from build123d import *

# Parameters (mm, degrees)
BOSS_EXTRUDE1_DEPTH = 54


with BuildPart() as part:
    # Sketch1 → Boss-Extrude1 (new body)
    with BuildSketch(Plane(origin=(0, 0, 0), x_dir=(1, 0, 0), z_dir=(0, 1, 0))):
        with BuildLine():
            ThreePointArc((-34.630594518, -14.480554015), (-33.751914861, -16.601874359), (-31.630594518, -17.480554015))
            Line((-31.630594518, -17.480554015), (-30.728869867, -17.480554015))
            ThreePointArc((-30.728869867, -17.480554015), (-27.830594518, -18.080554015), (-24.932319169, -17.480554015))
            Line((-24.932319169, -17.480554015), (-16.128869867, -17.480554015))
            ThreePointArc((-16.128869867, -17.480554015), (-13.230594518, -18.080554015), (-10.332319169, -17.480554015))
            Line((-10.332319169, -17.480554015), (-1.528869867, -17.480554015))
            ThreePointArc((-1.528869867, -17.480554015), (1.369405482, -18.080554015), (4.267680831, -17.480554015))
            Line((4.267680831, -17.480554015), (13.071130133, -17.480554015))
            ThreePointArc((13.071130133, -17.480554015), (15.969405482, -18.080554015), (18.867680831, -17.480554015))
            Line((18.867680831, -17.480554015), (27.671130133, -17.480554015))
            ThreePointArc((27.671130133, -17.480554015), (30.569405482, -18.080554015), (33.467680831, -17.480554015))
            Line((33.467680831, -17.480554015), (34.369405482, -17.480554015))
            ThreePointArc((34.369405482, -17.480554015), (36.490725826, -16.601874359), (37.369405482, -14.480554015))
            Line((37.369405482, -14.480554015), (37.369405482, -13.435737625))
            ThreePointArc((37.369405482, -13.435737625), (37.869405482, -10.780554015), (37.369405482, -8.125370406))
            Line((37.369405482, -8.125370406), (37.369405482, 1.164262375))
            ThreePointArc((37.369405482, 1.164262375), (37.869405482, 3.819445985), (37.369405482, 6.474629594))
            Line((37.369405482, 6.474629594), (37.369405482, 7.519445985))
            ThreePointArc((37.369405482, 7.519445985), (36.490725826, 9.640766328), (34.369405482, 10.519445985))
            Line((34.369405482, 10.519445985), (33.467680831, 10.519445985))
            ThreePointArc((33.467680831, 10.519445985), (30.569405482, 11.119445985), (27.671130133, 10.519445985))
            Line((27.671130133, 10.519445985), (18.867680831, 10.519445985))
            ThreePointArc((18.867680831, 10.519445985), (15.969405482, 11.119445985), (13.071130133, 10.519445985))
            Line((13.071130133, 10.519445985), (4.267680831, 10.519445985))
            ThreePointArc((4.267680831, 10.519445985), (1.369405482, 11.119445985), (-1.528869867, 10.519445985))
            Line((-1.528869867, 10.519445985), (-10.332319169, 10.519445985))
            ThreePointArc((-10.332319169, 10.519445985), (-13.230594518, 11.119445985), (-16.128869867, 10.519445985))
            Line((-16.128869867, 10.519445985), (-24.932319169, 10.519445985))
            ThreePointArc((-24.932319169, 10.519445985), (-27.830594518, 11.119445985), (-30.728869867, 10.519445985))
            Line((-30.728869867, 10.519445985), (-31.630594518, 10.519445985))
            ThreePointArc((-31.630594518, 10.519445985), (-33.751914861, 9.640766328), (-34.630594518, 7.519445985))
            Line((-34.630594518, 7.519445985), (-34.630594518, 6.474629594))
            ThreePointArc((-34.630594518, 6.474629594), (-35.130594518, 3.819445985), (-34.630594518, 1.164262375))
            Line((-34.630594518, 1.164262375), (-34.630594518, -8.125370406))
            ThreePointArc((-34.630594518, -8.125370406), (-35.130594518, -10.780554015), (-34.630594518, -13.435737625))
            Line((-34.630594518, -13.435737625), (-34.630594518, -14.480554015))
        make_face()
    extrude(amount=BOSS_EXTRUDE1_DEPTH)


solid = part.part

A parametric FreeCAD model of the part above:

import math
import FreeCAD as App
import Part
import Sketcher
from FreeCAD import Vector
Q = App.Units.Quantity

doc = App.newDocument("Part")
body = doc.addObject("PartDesign::Body", "Body")

# Sketch on XZ plane
sketch1 = body.newObject("Sketcher::SketchObject", "Sketch")
sketch1.AttachmentSupport = (doc.getObject("XZ_Plane"), [""])
sketch1.MapMode = "FlatFace"
sketch1.addGeometry([
    Part.ArcOfCircle(Part.Circle(Vector(-31.6, 14.5, 0), Vector(0, 0, 1), 3), math.radians(90), math.radians(180)),  # 0
    Part.LineSegment(Vector(-31.6, 17.5, 0), Vector(-30.7, 17.5, 0)),  # 1
    Part.ArcOfCircle(Part.Circle(Vector(-27.8, 10.8, 0), Vector(0, 0, 1), 7.3), math.radians(67), math.radians(113)),  # 2
    Part.LineSegment(Vector(-24.9, 17.5, 0), Vector(-16.1, 17.5, 0)),  # 3
    Part.ArcOfCircle(Part.Circle(Vector(-13.2, 10.8, 0), Vector(0, 0, 1), 7.3), math.radians(67), math.radians(113)),  # 4
    Part.LineSegment(Vector(-10.3, 17.5, 0), Vector(-1.5, 17.5, 0)),  # 5
    Part.ArcOfCircle(Part.Circle(Vector(1.4, 10.8, 0), Vector(0, 0, 1), 7.3), math.radians(67), math.radians(113)),  # 6
    Part.LineSegment(Vector(4.3, 17.5, 0), Vector(13.1, 17.5, 0)),  # 7
    Part.ArcOfCircle(Part.Circle(Vector(16, 10.8, 0), Vector(0, 0, 1), 7.3), math.radians(67), math.radians(113)),  # 8
    Part.LineSegment(Vector(18.9, 17.5, 0), Vector(27.7, 17.5, 0)),  # 9
    Part.ArcOfCircle(Part.Circle(Vector(30.6, 10.8, 0), Vector(0, 0, 1), 7.3), math.radians(67), math.radians(113)),  # 10
    Part.LineSegment(Vector(33.5, 17.5, 0), Vector(34.4, 17.5, 0)),  # 11
    Part.ArcOfCircle(Part.Circle(Vector(34.4, 14.5, 0), Vector(0, 0, 1), 3), math.radians(0), math.radians(90)),  # 12
    Part.LineSegment(Vector(37.4, 14.5, 0), Vector(37.4, 13.4, 0)),  # 13
    Part.ArcOfCircle(Part.Circle(Vector(30.6, 10.8, 0), Vector(0, 0, 1), 7.3), math.radians(-21), math.radians(21)),  # 14
    Part.LineSegment(Vector(37.4, 8.1, 0), Vector(37.4, -1.2, 0)),  # 15
    Part.ArcOfCircle(Part.Circle(Vector(30.6, -3.8, 0), Vector(0, 0, 1), 7.3), math.radians(-21), math.radians(21)),  # 16
    Part.LineSegment(Vector(37.4, -6.5, 0), Vector(37.4, -7.5, 0)),  # 17
    Part.ArcOfCircle(Part.Circle(Vector(34.4, -7.5, 0), Vector(0, 0, 1), 3), math.radians(-90), math.radians(0)),  # 18
    Part.LineSegment(Vector(34.4, -10.5, 0), Vector(33.5, -10.5, 0)),  # 19
    Part.ArcOfCircle(Part.Circle(Vector(30.6, -3.8, 0), Vector(0, 0, 1), 7.3), math.radians(-113), math.radians(-67)),  # 20
    Part.LineSegment(Vector(27.7, -10.5, 0), Vector(18.9, -10.5, 0)),  # 21
    Part.ArcOfCircle(Part.Circle(Vector(16, -3.8, 0), Vector(0, 0, 1), 7.3), math.radians(-113), math.radians(-67)),  # 22
    Part.LineSegment(Vector(13.1, -10.5, 0), Vector(4.3, -10.5, 0)),  # 23
    Part.ArcOfCircle(Part.Circle(Vector(1.4, -3.8, 0), Vector(0, 0, 1), 7.3), math.radians(-113), math.radians(-67)),  # 24
    Part.LineSegment(Vector(-1.5, -10.5, 0), Vector(-10.3, -10.5, 0)),  # 25
    Part.ArcOfCircle(Part.Circle(Vector(-13.2, -3.8, 0), Vector(0, 0, 1), 7.3), math.radians(-113), math.radians(-67)),  # 26
    Part.LineSegment(Vector(-16.1, -10.5, 0), Vector(-24.9, -10.5, 0)),  # 27
    Part.ArcOfCircle(Part.Circle(Vector(-27.8, -3.8, 0), Vector(0, 0, 1), 7.3), math.radians(-113), math.radians(-67)),  # 28
    Part.LineSegment(Vector(-30.7, -10.5, 0), Vector(-31.6, -10.5, 0)),  # 29
    Part.ArcOfCircle(Part.Circle(Vector(-31.6, -7.5, 0), Vector(0, 0, 1), 3), math.radians(-180), math.radians(-90)),  # 30
    Part.LineSegment(Vector(-34.6, -7.5, 0), Vector(-34.6, -6.5, 0)),  # 31
    Part.ArcOfCircle(Part.Circle(Vector(-27.8, -3.8, 0), Vector(0, 0, 1), 7.3), math.radians(159), math.radians(201)),  # 32
    Part.LineSegment(Vector(-34.6, -1.2, 0), Vector(-34.6, 8.1, 0)),  # 33
    Part.ArcOfCircle(Part.Circle(Vector(-27.8, 10.8, 0), Vector(0, 0, 1), 7.3), math.radians(159), math.radians(201)),  # 34
    Part.LineSegment(Vector(-34.6, 13.4, 0), Vector(-34.6, 14.5, 0)),  # 35
], False)
sketch1.addConstraint([
    Sketcher.Constraint("Tangent", 0, 1, 1, 1),
    Sketcher.Constraint("Coincident", 1, 2, 2, 2),
    Sketcher.Constraint("Coincident", 2, 1, 3, 1),
    Sketcher.Constraint("Coincident", 3, 2, 4, 2),
    Sketcher.Constraint("Coincident", 4, 1, 5, 1),
    Sketcher.Constraint("Coincident", 5, 2, 6, 2),
    Sketcher.Constraint("Coincident", 6, 1, 7, 1),
    Sketcher.Constraint("Coincident", 7, 2, 8, 2),
    Sketcher.Constraint("Coincident", 8, 1, 9, 1),
    Sketcher.Constraint("Coincident", 9, 2, 10, 2),
    Sketcher.Constraint("Coincident", 10, 1, 11, 1),
    Sketcher.Constraint("Tangent", 11, 2, 12, 2),
    Sketcher.Constraint("Tangent", 12, 1, 13, 1),
    Sketcher.Constraint("Coincident", 13, 2, 14, 2),
    Sketcher.Constraint("Coincident", 14, 1, 15, 1),
    Sketcher.Constraint("Coincident", 15, 2, 16, 2),
    Sketcher.Constraint("Coincident", 16, 1, 17, 1),
    Sketcher.Constraint("Tangent", 17, 2, 18, 2),
    Sketcher.Constraint("Tangent", 18, 1, 19, 1),
    Sketcher.Constraint("Coincident", 19, 2, 20, 2),
    Sketcher.Constraint("Coincident", 20, 1, 21, 1),
    Sketcher.Constraint("Coincident", 21, 2, 22, 2),
    Sketcher.Constraint("Coincident", 22, 1, 23, 1),
    Sketcher.Constraint("Coincident", 23, 2, 24, 2),
    Sketcher.Constraint("Coincident", 24, 1, 25, 1),
    Sketcher.Constraint("Coincident", 25, 2, 26, 2),
    Sketcher.Constraint("Coincident", 26, 1, 27, 1),
    Sketcher.Constraint("Coincident", 27, 2, 28, 2),
    Sketcher.Constraint("Coincident", 28, 1, 29, 1),
    Sketcher.Constraint("Tangent", 29, 2, 30, 2),
    Sketcher.Constraint("Tangent", 30, 1, 31, 1),
    Sketcher.Constraint("Coincident", 31, 2, 32, 2),
    Sketcher.Constraint("Coincident", 32, 1, 33, 1),
    Sketcher.Constraint("Coincident", 33, 2, 34, 2),
    Sketcher.Constraint("Coincident", 34, 1, 35, 1),
    Sketcher.Constraint("Tangent", 35, 2, 0, 2),
    Sketcher.Constraint("Horizontal", 1),
    Sketcher.Constraint("Horizontal", 3),
    Sketcher.Constraint("Horizontal", 5),
    Sketcher.Constraint("Horizontal", 7),
    Sketcher.Constraint("Horizontal", 9),
    Sketcher.Constraint("Horizontal", 11),
    Sketcher.Constraint("Vertical", 13),
    Sketcher.Constraint("Vertical", 15),
    Sketcher.Constraint("Vertical", 17),
    Sketcher.Constraint("Horizontal", 19),
    Sketcher.Constraint("Horizontal", 21),
    Sketcher.Constraint("Horizontal", 23),
    Sketcher.Constraint("Horizontal", 25),
    Sketcher.Constraint("Horizontal", 27),
    Sketcher.Constraint("Horizontal", 29),
    Sketcher.Constraint("Vertical", 31),
    Sketcher.Constraint("Vertical", 33),
    Sketcher.Constraint("Vertical", 35),
    Sketcher.Constraint("Coincident", 14, 3, 10, 3),
    Sketcher.Constraint("Coincident", 20, 3, 16, 3),
    Sketcher.Constraint("Coincident", 32, 3, 28, 3),
    Sketcher.Constraint("Coincident", 34, 3, 2, 3),
    Sketcher.Constraint("Equal", 2, 4),
    Sketcher.Constraint("Equal", 4, 6),
    Sketcher.Constraint("Equal", 6, 8),
    Sketcher.Constraint("Equal", 8, 10),
    Sketcher.Constraint("Equal", 0, 12),
    Sketcher.Constraint("Equal", 10, 14),
    Sketcher.Constraint("Equal", 14, 16),
    Sketcher.Constraint("Equal", 12, 18),
    Sketcher.Constraint("Equal", 16, 20),
    Sketcher.Constraint("Equal", 20, 22),
    Sketcher.Constraint("Equal", 22, 24),
    Sketcher.Constraint("Equal", 24, 26),
    Sketcher.Constraint("Equal", 26, 28),
    Sketcher.Constraint("Equal", 18, 30),
    Sketcher.Constraint("Equal", 28, 32),
    Sketcher.Constraint("Equal", 32, 34),
    Sketcher.Constraint("Horizontal", 2, 3, 4, 3),
    Sketcher.Constraint("Horizontal", 4, 3, 6, 3),
    Sketcher.Constraint("Horizontal", 6, 3, 8, 3),
    Sketcher.Constraint("Horizontal", 8, 3, 10, 3),
    Sketcher.Constraint("Horizontal", 0, 3, 12, 3),
    Sketcher.Constraint("Horizontal", 20, 3, 22, 3),
    Sketcher.Constraint("Horizontal", 22, 3, 24, 3),
    Sketcher.Constraint("Horizontal", 24, 3, 26, 3),
    Sketcher.Constraint("Horizontal", 26, 3, 28, 3),
    Sketcher.Constraint("Horizontal", 18, 3, 30, 3),
    Sketcher.Constraint("Horizontal", 1, 2, 2, 1),
    Sketcher.Constraint("Horizontal", 3, 2, 4, 1),
    Sketcher.Constraint("Horizontal", 5, 2, 6, 1),
    Sketcher.Constraint("Horizontal", 7, 2, 8, 1),
    Sketcher.Constraint("Horizontal", 19, 2, 20, 1),
    Sketcher.Constraint("Horizontal", 21, 2, 22, 1),
    Sketcher.Constraint("Horizontal", 23, 2, 24, 1),
    Sketcher.Constraint("Horizontal", 25, 2, 26, 1),
    Sketcher.Constraint("Horizontal", 16, 1, 31, 2),
    Sketcher.Constraint("Horizontal", 15, 2, 32, 1),
    Sketcher.Constraint("Horizontal", 14, 1, 33, 2),
    Sketcher.Constraint("Horizontal", 13, 2, 34, 1),
    Sketcher.Constraint("Vertical", 14, 3, 16, 3),
    Sketcher.Constraint("Vertical", 12, 3, 18, 3),
    Sketcher.Constraint("Vertical", 8, 3, 22, 3),
    Sketcher.Constraint("Vertical", 6, 3, 24, 3),
    Sketcher.Constraint("Vertical", 4, 3, 26, 3),
    Sketcher.Constraint("Vertical", 13, 2, 14, 1),
    Sketcher.Constraint("Vertical", 10, 1, 19, 2),
    Sketcher.Constraint("Equal", 3, 5),
    Sketcher.Constraint("Equal", 5, 7),
    Sketcher.Constraint("Equal", 7, 9),
    Sketcher.Constraint("Radius", 0, Q("3 mm")),
    Sketcher.Constraint("Radius", 2, Q("7.3 mm")),
    Sketcher.Constraint("DistanceX", 0, 3, 6, 3, Q("33 mm")),
    Sketcher.Constraint("DistanceY", 18, 3, 12, 3, Q("22 mm")),
    Sketcher.Constraint("DistanceX", 0, 3, 2, 3, Q("3.8 mm")),
    Sketcher.Constraint("DistanceY", 2, 3, 0, 3, Q("3.7 mm")),
    Sketcher.Constraint("DistanceX", 1, 2, -1, 1, Q("30.72887 mm")),
    Sketcher.Constraint("DistanceY", -1, 1, 14, 1, Q("8.12537 mm")),
])
pad1 = body.newObject("PartDesign::Pad", "Pad")
pad1.Profile = sketch1
pad1.Length = 54
pad1.Reversed = True

doc.recompute()
